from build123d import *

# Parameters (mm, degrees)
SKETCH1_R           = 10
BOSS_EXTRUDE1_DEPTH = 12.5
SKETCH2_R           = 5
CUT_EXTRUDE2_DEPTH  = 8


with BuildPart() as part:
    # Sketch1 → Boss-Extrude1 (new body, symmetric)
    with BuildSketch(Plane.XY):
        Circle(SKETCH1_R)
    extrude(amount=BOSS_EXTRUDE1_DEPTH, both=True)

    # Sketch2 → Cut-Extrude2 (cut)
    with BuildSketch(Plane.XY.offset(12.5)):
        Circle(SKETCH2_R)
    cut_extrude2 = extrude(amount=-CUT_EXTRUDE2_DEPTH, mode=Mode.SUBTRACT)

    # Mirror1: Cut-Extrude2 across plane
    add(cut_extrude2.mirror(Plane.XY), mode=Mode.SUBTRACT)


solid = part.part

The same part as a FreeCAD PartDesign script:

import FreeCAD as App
import Part
import Sketcher
Q = App.Units.Quantity

doc = App.newDocument("Part")
body = doc.addObject("PartDesign::Body", "Body")

sketch1 = doc.addObject("Sketcher::SketchObject", "Sketch")
body.addObject(sketch1)
sketch1.AttachmentSupport = (doc.XY_Plane, [""])
sketch1.MapMode = "FlatFace"
sketch1.addGeometry(Part.Circle(App.Vector(0, 0, 0), App.Vector(0, 0, 1), 10), False)
sketch1.addConstraint([
    Sketcher.Constraint("Coincident", 0, 3, -1, 1),
    Sketcher.Constraint("Diameter", 0, Q("20 mm")),
])
pad1 = doc.addObject("PartDesign::Pad", "Pad")
body.addObject(pad1)
pad1.Profile = sketch1
pad1.Length = 25
pad1.Midplane = True

sketch2 = doc.addObject("Sketcher::SketchObject", "Sketch001")
body.addObject(sketch2)
sketch2.AttachmentSupport = (doc.XY_Plane, [""])
sketch2.MapMode = "FlatFace"
sketch2.AttachmentOffset = App.Placement(App.Vector(0, 0, 12.5), App.Rotation())
sketch2.addGeometry(Part.Circle(App.Vector(0, 0, 0), App.Vector(0, 0, 1), 5), False)
sketch2.addConstraint([
    Sketcher.Constraint("Coincident", 0, 3, -1, 1),
    Sketcher.Constraint("Diameter", 0, Q("10 mm")),
])
pocket1 = doc.addObject("PartDesign::Pocket", "Pocket")
body.addObject(pocket1)
pocket1.Profile = sketch2
pocket1.Length = 8
doc.recompute()

mirrored = doc.addObject("PartDesign::Mirrored", "Mirrored")
body.addObject(mirrored)
mirrored.Originals = [pocket1]
mirrored.MirrorPlane = (doc.XY_Plane, [""])
body.Tip = mirrored

doc.recompute()
